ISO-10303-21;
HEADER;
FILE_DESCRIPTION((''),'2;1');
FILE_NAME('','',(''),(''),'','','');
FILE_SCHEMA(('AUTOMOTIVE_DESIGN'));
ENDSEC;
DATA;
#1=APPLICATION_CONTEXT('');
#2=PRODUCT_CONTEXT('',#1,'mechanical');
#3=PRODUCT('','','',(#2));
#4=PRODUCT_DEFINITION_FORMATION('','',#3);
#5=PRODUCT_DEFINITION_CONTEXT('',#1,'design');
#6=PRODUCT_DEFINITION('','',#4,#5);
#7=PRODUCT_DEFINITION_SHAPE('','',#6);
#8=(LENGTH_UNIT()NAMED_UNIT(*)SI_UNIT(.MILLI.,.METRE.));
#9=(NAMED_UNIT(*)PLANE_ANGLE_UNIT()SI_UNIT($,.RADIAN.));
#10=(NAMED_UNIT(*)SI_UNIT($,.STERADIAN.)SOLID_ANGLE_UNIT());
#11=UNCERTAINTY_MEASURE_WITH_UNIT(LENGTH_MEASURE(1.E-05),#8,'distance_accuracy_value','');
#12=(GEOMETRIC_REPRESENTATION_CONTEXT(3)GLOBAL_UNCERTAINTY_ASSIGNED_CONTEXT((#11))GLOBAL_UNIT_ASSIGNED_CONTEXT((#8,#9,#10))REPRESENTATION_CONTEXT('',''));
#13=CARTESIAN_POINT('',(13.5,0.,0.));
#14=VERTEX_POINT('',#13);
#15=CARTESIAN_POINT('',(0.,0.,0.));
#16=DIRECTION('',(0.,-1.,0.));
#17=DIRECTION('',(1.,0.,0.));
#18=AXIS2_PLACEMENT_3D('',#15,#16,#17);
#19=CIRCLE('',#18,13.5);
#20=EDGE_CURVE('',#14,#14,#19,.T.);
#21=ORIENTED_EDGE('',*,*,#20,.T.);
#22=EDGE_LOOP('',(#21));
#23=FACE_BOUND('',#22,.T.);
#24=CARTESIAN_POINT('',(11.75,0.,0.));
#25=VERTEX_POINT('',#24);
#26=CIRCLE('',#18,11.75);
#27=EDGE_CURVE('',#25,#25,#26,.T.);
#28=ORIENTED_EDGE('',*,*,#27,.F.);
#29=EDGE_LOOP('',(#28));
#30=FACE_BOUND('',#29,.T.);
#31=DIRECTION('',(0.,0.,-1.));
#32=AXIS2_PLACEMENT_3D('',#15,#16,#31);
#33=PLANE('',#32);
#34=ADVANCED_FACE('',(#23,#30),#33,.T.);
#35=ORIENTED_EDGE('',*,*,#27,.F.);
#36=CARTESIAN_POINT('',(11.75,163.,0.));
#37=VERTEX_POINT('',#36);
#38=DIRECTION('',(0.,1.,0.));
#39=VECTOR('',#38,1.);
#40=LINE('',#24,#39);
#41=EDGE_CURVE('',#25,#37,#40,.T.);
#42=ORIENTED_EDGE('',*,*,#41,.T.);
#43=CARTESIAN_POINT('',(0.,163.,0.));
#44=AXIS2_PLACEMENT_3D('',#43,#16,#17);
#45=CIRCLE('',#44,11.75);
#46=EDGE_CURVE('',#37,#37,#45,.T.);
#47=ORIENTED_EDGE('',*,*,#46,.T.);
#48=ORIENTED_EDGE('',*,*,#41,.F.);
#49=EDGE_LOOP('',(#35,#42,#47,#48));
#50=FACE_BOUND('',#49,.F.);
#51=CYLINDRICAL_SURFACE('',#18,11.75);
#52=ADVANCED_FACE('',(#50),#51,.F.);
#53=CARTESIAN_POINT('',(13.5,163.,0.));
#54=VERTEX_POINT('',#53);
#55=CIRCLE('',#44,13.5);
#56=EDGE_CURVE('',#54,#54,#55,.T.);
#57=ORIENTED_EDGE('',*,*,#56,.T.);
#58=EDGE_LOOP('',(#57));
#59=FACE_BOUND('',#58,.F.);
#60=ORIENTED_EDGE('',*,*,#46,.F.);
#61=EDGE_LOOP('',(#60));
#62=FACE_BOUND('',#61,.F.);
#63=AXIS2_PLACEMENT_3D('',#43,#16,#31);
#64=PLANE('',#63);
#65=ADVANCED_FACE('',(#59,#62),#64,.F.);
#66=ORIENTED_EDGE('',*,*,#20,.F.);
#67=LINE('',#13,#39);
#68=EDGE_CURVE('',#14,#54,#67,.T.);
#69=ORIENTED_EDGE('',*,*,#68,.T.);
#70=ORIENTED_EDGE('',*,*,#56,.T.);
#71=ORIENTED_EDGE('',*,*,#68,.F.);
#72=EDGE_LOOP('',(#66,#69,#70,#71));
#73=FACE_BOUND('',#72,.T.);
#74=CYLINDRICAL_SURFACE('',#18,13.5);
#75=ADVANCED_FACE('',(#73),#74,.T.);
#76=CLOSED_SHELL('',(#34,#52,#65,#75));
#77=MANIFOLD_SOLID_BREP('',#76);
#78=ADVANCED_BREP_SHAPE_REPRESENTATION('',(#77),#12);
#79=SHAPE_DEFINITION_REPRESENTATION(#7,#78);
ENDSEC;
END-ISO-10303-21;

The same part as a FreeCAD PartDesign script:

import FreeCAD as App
import Part
import Sketcher

doc = App.newDocument("Part")
body = doc.addObject("PartDesign::Body", "Body")

sketch1 = body.newObject("Sketcher::SketchObject", "Sketch")
sketch1.AttachmentSupport = (doc.getObject("XZ_Plane"), [""])
sketch1.MapMode = "FlatFace"
sketch1.addGeometry(Part.Circle(App.Vector(0, 0, 0), App.Vector(0, 0, 1), 14), False)
sketch1.addGeometry(Part.Circle(App.Vector(0, 0, 0), App.Vector(0, 0, 1), 12), False)
sketch1.addConstraint(Sketcher.Constraint("Coincident", 0, 3, -1, 1))
sketch1.addConstraint(Sketcher.Constraint("Coincident", 1, 3, -1, 1))
sketch1.addConstraint(Sketcher.Constraint("Diameter", 0, 27.0))
sketch1.addConstraint(Sketcher.Constraint("Diameter", 1, 23.5))
pad1 = body.newObject("PartDesign::Pad", "Pad")
pad1.Profile = sketch1
pad1.Length = 163
pad1.Reversed = True

doc.recompute()
